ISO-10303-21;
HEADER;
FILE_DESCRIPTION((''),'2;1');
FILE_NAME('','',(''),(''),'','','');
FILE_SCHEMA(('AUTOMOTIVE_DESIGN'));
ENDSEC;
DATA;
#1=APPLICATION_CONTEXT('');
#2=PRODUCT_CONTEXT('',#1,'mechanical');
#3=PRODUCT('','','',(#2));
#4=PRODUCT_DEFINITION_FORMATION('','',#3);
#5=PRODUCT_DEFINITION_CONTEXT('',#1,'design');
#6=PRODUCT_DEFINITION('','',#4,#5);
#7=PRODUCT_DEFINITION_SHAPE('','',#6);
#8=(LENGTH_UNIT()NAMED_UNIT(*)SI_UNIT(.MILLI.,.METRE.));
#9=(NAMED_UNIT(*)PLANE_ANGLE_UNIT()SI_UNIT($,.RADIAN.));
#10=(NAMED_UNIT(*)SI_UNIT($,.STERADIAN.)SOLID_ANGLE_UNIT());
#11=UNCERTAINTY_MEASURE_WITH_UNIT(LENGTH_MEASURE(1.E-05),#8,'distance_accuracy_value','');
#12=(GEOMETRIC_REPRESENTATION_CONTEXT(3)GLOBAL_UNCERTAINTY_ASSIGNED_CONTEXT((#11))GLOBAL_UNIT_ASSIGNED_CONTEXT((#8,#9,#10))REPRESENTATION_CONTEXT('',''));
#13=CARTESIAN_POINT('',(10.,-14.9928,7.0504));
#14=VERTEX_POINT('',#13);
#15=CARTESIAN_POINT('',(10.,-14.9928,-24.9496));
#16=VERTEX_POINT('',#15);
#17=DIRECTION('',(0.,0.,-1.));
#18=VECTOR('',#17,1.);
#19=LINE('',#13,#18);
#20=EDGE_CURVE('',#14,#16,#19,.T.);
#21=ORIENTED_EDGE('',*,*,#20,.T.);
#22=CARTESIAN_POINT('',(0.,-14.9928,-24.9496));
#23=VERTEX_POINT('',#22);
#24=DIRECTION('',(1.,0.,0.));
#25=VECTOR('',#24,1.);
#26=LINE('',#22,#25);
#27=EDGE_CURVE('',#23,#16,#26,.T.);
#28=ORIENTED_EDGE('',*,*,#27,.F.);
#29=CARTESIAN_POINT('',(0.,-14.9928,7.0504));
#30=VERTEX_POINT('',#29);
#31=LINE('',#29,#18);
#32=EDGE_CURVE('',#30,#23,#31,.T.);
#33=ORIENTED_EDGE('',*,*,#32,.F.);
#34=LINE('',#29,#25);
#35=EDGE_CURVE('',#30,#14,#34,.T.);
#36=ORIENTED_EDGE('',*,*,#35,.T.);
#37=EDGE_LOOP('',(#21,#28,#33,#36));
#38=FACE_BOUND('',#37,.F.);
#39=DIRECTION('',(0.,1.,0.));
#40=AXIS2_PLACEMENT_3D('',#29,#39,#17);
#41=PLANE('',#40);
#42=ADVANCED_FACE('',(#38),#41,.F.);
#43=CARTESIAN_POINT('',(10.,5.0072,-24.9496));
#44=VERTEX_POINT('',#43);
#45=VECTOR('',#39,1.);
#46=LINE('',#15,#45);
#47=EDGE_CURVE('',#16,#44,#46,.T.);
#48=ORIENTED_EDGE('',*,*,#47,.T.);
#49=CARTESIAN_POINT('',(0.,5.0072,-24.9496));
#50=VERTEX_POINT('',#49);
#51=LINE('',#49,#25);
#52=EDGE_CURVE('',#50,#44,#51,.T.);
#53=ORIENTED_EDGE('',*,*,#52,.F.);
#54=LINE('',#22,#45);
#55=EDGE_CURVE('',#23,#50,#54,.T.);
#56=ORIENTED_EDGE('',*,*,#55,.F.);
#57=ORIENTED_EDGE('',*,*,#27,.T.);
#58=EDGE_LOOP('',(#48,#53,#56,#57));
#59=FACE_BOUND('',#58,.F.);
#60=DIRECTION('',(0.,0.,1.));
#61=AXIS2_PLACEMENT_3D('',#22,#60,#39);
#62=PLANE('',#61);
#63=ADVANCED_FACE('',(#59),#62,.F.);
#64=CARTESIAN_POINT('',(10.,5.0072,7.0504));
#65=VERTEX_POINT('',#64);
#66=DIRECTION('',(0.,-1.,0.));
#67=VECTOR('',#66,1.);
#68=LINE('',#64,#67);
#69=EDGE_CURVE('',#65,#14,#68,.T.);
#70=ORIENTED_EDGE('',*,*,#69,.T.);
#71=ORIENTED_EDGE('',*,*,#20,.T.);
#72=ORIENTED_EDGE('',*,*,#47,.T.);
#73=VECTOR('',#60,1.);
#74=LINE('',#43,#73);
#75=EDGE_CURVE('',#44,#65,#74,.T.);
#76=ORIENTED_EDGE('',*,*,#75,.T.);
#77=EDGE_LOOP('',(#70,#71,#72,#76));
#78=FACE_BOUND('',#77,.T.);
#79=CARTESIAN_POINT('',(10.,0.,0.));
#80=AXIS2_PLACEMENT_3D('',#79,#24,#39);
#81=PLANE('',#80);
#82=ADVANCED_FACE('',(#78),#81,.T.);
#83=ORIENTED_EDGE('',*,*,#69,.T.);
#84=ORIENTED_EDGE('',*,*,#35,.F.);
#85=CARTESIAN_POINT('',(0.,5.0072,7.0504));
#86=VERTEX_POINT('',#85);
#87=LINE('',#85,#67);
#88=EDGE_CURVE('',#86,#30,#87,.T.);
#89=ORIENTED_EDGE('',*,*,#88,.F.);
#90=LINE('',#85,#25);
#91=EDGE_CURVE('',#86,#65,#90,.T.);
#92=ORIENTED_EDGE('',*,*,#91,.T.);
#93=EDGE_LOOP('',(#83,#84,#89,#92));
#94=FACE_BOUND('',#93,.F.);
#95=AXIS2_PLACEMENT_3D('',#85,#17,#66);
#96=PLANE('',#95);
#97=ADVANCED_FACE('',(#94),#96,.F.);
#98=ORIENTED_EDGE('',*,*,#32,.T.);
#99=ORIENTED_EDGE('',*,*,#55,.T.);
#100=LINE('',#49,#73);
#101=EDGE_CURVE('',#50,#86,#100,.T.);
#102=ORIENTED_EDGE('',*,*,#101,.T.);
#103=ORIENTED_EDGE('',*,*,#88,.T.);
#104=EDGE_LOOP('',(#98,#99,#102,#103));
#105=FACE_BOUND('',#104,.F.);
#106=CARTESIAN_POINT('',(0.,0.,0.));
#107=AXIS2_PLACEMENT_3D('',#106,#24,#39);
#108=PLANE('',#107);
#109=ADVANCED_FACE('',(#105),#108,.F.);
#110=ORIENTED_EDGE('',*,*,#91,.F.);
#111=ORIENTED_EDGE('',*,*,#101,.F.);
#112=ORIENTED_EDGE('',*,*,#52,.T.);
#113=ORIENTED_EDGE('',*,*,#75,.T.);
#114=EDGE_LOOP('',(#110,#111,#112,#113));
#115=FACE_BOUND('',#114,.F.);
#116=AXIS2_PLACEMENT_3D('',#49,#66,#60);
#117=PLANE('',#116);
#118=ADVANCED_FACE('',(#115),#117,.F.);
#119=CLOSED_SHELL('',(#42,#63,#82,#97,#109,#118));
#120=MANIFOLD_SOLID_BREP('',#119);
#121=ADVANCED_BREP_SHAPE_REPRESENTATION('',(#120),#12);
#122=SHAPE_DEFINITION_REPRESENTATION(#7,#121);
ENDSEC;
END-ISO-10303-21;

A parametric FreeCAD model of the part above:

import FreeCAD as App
import Part
import Sketcher
Q = App.Units.Quantity

doc = App.newDocument("Part")
body = doc.addObject("PartDesign::Body", "Body")

# Sketch on YZ plane
sketch1 = body.newObject("Sketcher::SketchObject", "Sketch")
sketch1.AttachmentSupport = (doc.getObject("YZ_Plane"), [""])
sketch1.MapMode = "FlatFace"
sketch1.addGeometry([
    Part.LineSegment(App.Vector(5, -25, 0), App.Vector(5, 7, 0)),
    Part.LineSegment(App.Vector(5, 7, 0), App.Vector(-15, 7, 0)),
    Part.LineSegment(App.Vector(-15, 7, 0), App.Vector(-15, -25, 0)),
    Part.LineSegment(App.Vector(-15, -25, 0), App.Vector(5, -25, 0)),
], False)
sketch1.addConstraint([
    Sketcher.Constraint("Coincident", 0, 2, 1, 1),
    Sketcher.Constraint("Coincident", 1, 2, 2, 1),
    Sketcher.Constraint("Coincident", 2, 2, 3, 1),
    Sketcher.Constraint("Coincident", 3, 2, 0, 1),
    Sketcher.Constraint("Vertical", 0),
    Sketcher.Constraint("Horizontal", 1),
    Sketcher.Constraint("Vertical", 2),
    Sketcher.Constraint("Horizontal", 3),
    Sketcher.Constraint("DistanceX", 1, 2, 1, 1, Q("20 mm")),
    Sketcher.Constraint("DistanceY", 0, 1, 0, 2, Q("32 mm")),
    Sketcher.Constraint("DistanceX", -1, 1, 0, 2, Q("5.0072 mm")),
    Sketcher.Constraint("DistanceY", -1, 1, 0, 2, Q("7.0504 mm")),
])
pad1 = body.newObject("PartDesign::Pad", "Pad")
pad1.Profile = sketch1
pad1.Length = 10

doc.recompute()
